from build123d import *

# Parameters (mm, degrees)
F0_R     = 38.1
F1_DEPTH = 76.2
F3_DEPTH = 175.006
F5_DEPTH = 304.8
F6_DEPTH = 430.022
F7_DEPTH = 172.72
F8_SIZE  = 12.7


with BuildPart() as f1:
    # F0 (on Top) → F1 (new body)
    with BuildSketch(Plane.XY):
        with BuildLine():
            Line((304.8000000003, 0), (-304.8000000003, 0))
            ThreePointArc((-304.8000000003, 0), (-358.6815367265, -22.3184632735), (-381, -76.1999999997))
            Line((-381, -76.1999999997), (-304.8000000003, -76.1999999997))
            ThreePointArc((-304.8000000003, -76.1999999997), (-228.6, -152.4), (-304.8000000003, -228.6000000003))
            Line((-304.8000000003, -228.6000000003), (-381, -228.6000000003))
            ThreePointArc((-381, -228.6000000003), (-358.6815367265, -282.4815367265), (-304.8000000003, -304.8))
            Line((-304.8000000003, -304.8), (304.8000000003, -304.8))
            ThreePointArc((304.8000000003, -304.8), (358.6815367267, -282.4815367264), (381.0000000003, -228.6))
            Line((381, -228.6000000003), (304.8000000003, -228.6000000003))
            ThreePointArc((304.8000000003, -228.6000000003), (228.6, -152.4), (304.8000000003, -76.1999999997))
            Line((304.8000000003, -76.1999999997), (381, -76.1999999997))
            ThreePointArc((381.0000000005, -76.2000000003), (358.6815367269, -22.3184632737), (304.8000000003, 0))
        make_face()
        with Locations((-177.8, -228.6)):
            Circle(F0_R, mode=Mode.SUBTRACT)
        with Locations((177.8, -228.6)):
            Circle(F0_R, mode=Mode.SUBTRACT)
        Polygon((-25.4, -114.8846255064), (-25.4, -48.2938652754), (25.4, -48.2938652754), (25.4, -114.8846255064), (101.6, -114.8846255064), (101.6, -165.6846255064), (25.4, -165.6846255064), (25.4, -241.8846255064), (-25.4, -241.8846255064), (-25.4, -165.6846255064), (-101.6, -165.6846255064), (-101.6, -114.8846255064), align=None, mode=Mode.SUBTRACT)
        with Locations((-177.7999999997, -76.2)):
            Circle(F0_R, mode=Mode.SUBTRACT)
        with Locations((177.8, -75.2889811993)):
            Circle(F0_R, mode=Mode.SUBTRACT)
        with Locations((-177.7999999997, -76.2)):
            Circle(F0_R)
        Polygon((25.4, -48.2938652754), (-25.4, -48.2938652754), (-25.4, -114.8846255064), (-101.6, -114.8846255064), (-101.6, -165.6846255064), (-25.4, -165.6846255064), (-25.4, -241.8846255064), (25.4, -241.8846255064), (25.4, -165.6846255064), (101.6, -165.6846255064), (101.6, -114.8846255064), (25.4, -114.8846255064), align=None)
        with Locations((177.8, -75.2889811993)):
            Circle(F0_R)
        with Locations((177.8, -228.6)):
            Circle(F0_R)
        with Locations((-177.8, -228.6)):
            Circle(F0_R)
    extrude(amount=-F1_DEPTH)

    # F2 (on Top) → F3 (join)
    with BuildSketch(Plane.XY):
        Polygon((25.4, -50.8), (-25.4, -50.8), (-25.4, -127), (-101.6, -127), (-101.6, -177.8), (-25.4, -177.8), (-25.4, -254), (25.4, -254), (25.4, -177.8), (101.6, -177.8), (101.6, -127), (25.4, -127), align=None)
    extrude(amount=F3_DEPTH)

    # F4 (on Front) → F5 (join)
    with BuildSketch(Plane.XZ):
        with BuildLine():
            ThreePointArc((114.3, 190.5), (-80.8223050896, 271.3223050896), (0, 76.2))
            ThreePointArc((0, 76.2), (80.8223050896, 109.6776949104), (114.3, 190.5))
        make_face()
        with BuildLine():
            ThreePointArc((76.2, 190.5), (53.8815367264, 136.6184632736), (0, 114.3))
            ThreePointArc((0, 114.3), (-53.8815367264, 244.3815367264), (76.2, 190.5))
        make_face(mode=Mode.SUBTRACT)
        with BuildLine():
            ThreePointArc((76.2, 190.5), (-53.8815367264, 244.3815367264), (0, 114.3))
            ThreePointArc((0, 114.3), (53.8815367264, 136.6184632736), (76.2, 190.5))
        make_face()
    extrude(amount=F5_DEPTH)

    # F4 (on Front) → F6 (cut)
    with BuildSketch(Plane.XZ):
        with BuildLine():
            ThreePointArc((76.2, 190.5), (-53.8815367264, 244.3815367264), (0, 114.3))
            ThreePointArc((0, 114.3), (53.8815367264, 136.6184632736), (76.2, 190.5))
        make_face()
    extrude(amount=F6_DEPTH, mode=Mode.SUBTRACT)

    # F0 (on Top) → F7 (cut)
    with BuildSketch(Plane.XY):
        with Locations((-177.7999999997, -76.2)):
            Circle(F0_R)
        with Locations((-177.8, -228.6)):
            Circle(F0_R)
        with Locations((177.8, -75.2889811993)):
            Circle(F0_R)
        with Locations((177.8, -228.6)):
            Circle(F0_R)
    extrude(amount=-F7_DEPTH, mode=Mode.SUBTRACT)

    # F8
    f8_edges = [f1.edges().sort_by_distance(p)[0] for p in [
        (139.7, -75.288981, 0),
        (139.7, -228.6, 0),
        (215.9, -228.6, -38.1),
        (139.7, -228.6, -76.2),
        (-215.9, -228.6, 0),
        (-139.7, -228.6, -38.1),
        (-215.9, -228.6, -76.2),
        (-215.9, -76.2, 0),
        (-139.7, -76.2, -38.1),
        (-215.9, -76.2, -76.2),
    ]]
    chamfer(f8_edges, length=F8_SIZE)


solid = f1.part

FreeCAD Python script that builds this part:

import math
import FreeCAD as App
import Part
import Sketcher
from FreeCAD import Vector
Q = App.Units.Quantity


def edges_at(feature, points):
    """Names of the edges that pass closest to the given points."""
    edges = feature.Shape.Edges
    near = lambda p: min(range(len(edges)), key=lambda i: edges[i].distToShape(Part.Vertex(*p))[0])
    return sorted({f"Edge{near(p) + 1}" for p in points})


def add_polygon(sketch, points):
    """Adds a closed chain of lines whose ends are joined by coincident constraints."""
    first, n = sketch.GeometryCount, len(points)
    for a, b in zip(points, points[1:] + points[:1]):
        sketch.addGeometry(Part.LineSegment(App.Vector(*a, 0), App.Vector(*b, 0)), False)
    for i in range(n):
        sketch.addConstraint(Sketcher.Constraint("Coincident", first + i, 2, first + (i + 1) % n, 1))

doc = App.newDocument("Part")
params = doc.addObject("Spreadsheet::Sheet", "Params")
for row, (alias, value) in enumerate([
    ("sketch1_radius", "3 in"),
    ("sketch1_width", "24 in"),
    ("pad1_length", "3 in"),
    ("sketch2_width", "2 in"),
    ("sketch2_width2", "3 in"),
    ("pad2_length", "6.89 in"),
    ("sketch3_diameter", "9 in"),
    ("pad3_length", "12 in"),
    ("sketch4_diameter", "6 in"),
    ("pocket1_length", "16.93 in"),
    ("sketch5_diameter", "3 in"),
    ("pocket2_length", "6.8 in"),
    ("chamfer_size", "0.5 in"),
], start=1):
    params.set(f"A{row}", alias)
    params.set(f"B{row}", "=" + value)
    params.setAlias(f"B{row}", alias)

body = doc.addObject("PartDesign::Body", "Body")

sketch1 = body.newObject("Sketcher::SketchObject", "Sketch")
sketch1.AttachmentSupport = (doc.getObject("XY_Plane"), [""])
sketch1.MapMode = "FlatFace"
sketch1.addGeometry(Part.LineSegment(Vector(305, 0, 0), Vector(-305, 0, 0)), False)
sketch1.addGeometry(Part.ArcOfCircle(Part.Circle(Vector(-305, -76, 0), Vector(0, 0, 1), 76), math.radians(90), math.radians(180)), False)
sketch1.addGeometry(Part.LineSegment(Vector(-381, -76, 0), Vector(-305, -76, 0)), False)
sketch1.addGeometry(Part.ArcOfCircle(Part.Circle(Vector(-305, -152, 0), Vector(0, 0, 1), 76), math.radians(-90), math.radians(90)), False)
sketch1.addGeometry(Part.LineSegment(Vector(-305, -229, 0), Vector(-381, -229, 0)), False)
sketch1.addGeometry(Part.ArcOfCircle(Part.Circle(Vector(-305, -229, 0), Vector(0, 0, 1), 76), math.radians(180), math.radians(270)), False)
sketch1.addGeometry(Part.LineSegment(Vector(-305, -305, 0), Vector(305, -305, 0)), False)
sketch1.addGeometry(Part.ArcOfCircle(Part.Circle(Vector(305, -229, 0), Vector(0, 0, 1), 76), math.radians(-90), math.radians(0)), False)
sketch1.addGeometry(Part.LineSegment(Vector(381, -229, 0), Vector(305, -229, 0)), False)
sketch1.addGeometry(Part.ArcOfCircle(Part.Circle(Vector(305, -152, 0), Vector(0, 0, 1), 76), math.radians(90), math.radians(270)), False)
sketch1.addGeometry(Part.LineSegment(Vector(305, -76, 0), Vector(381, -76, 0)), False)
sketch1.addGeometry(Part.ArcOfCircle(Part.Circle(Vector(305, -76, 0), Vector(0, 0, 1), 76), math.radians(0), math.radians(90)), False)
sketch1.addConstraint(Sketcher.Constraint("Tangent", 0, 2, 1, 1))
sketch1.addConstraint(Sketcher.Constraint("Coincident", 1, 2, 2, 1))
sketch1.addConstraint(Sketcher.Constraint("Tangent", 2, 2, 3, 2))
sketch1.addConstraint(Sketcher.Constraint("Tangent", 3, 1, 4, 1))
sketch1.addConstraint(Sketcher.Constraint("Coincident", 4, 2, 5, 1))
sketch1.addConstraint(Sketcher.Constraint("Tangent", 5, 2, 6, 1))
sketch1.addConstraint(Sketcher.Constraint("Tangent", 6, 2, 7, 1))
sketch1.addConstraint(Sketcher.Constraint("Coincident", 7, 2, 8, 1))
sketch1.addConstraint(Sketcher.Constraint("Tangent", 8, 2, 9, 2))
sketch1.addConstraint(Sketcher.Constraint("Tangent", 9, 1, 10, 1))
sketch1.addConstraint(Sketcher.Constraint("Coincident", 10, 2, 11, 1))
sketch1.addConstraint(Sketcher.Constraint("Tangent", 11, 2, 0, 1))
sketch1.addConstraint(Sketcher.Constraint("Horizontal", 0))
sketch1.addConstraint(Sketcher.Constraint("Horizontal", 2))
sketch1.addConstraint(Sketcher.Constraint("Horizontal", 4))
sketch1.addConstraint(Sketcher.Constraint("Horizontal", 6))
sketch1.addConstraint(Sketcher.Constraint("Horizontal", 8))
sketch1.addConstraint(Sketcher.Constraint("Horizontal", 10))
sketch1.addConstraint(Sketcher.Constraint("Coincident", 2, 2, 1, 3))
sketch1.addConstraint(Sketcher.Constraint("Coincident", 3, 1, 5, 3))
sketch1.addConstraint(Sketcher.Constraint("Coincident", 8, 2, 7, 3))
sketch1.addConstraint(Sketcher.Constraint("Coincident", 9, 1, 11, 3))
sketch1.addConstraint(Sketcher.Constraint("Equal", 1, 3))
sketch1.addConstraint(Sketcher.Constraint("Equal", 3, 5))
sketch1.addConstraint(Sketcher.Constraint("Equal", 5, 7))
sketch1.addConstraint(Sketcher.Constraint("Equal", 7, 9))
sketch1.addConstraint(Sketcher.Constraint("Symmetric", 0, 2, 11, 2, -1, 1))
sketch1.addConstraint(Sketcher.Constraint("Radius", 1, Q("3 in")))
sketch1.addConstraint(Sketcher.Constraint("DistanceX", 0, 2, 0, 1, Q("24 in")))
sketch1.setExpression("Constraints[27]", "Params.sketch1_radius")
sketch1.setExpression("Constraints[28]", "Params.sketch1_width")
pad1 = body.newObject("PartDesign::Pad", "Pad")
pad1.Profile = sketch1
pad1.setExpression("Length", "Params.pad1_length")
pad1.Reversed = True

sketch2 = body.newObject("Sketcher::SketchObject", "Sketch001")
sketch2.AttachmentSupport = (doc.getObject("XY_Plane"), [""])
sketch2.MapMode = "FlatFace"
add_polygon(sketch2, [(25, -51), (-25, -51), (-25, -127), (-102, -127), (-102, -178), (-25, -178), (-25, -254), (25, -254), (25, -178), (102, -178), (102, -127), (25, -127)])
sketch2.addConstraint(Sketcher.Constraint("Horizontal", 0))
sketch2.addConstraint(Sketcher.Constraint("Vertical", 1))
sketch2.addConstraint(Sketcher.Constraint("Horizontal", 2))
sketch2.addConstraint(Sketcher.Constraint("Vertical", 3))
sketch2.addConstraint(Sketcher.Constraint("Horizontal", 4))
sketch2.addConstraint(Sketcher.Constraint("Vertical", 5))
sketch2.addConstraint(Sketcher.Constraint("Horizontal", 6))
sketch2.addConstraint(Sketcher.Constraint("Vertical", 7))
sketch2.addConstraint(Sketcher.Constraint("Horizontal", 8))
sketch2.addConstraint(Sketcher.Constraint("Vertical", 9))
sketch2.addConstraint(Sketcher.Constraint("Horizontal", 10))
sketch2.addConstraint(Sketcher.Constraint("Vertical", 11))
sketch2.addConstraint(Sketcher.Constraint("Symmetric", 4, 2, 7, 2, -2))
sketch2.addConstraint(Sketcher.Constraint("Symmetric", 2, 2, 9, 2, -2))
sketch2.addConstraint(Sketcher.Constraint("Vertical", 1, 2, 4, 2))
sketch2.addConstraint(Sketcher.Constraint("Vertical", 7, 2, 10, 2))
sketch2.addConstraint(Sketcher.Constraint("Equal", 10, 1))
sketch2.addConstraint(Sketcher.Constraint("Equal", 6, 3))
sketch2.addConstraint(Sketcher.Constraint("Equal", 1, 5))
sketch2.addConstraint(Sketcher.Constraint("DistanceX", 0, 2, 0, 1, Q("2 in")))
sketch2.addConstraint(Sketcher.Constraint("DistanceX", 2, 2, 2, 1, Q("3 in")))
sketch2.addConstraint(Sketcher.Constraint("DistanceY", 0, 2, -1, 1, Q("2 in")))
sketch2.setExpression("Constraints[31]", "Params.sketch2_width")
sketch2.setExpression("Constraints[32]", "Params.sketch2_width2")
pad2 = body.newObject("PartDesign::Pad", "Pad001")
pad2.Profile = sketch2
pad2.setExpression("Length", "Params.pad2_length")

sketch3 = body.newObject("Sketcher::SketchObject", "Sketch002")
sketch3.AttachmentSupport = (doc.getObject("XZ_Plane"), [""])
sketch3.MapMode = "FlatFace"
sketch3.addGeometry(Part.Circle(Vector(0, 190, 0), Vector(0, 0, 1), 114), False)
sketch3.addConstraint(Sketcher.Constraint("PointOnObject", 0, 3, -2))
sketch3.addConstraint(Sketcher.Constraint("Diameter", 0, Q("9 in")))
sketch3.addConstraint(Sketcher.Constraint("DistanceY", -1, 1, 0, 3, Q("7.5 in")))
sketch3.setExpression("Constraints[1]", "Params.sketch3_diameter")
pad3 = body.newObject("PartDesign::Pad", "Pad002")
pad3.Profile = sketch3
pad3.setExpression("Length", "Params.pad3_length")

sketch4 = body.newObject("Sketcher::SketchObject", "Sketch003")
sketch4.AttachmentSupport = (doc.getObject("XZ_Plane"), [""])
sketch4.MapMode = "FlatFace"
sketch4.addGeometry(Part.Circle(Vector(0, 190, 0), Vector(0, 0, 1), 76), False)
sketch4.addConstraint(Sketcher.Constraint("PointOnObject", 0, 3, -2))
sketch4.addConstraint(Sketcher.Constraint("Diameter", 0, Q("6 in")))
sketch4.addConstraint(Sketcher.Constraint("DistanceY", -1, 1, 0, 3, Q("7.5 in")))
sketch4.setExpression("Constraints[1]", "Params.sketch4_diameter")
pocket1 = body.newObject("PartDesign::Pocket", "Pocket")
pocket1.Profile = sketch4
pocket1.setExpression("Length", "Params.pocket1_length")
pocket1.Reversed = True

sketch5 = body.newObject("Sketcher::SketchObject", "Sketch004")
sketch5.AttachmentSupport = (doc.getObject("XY_Plane"), [""])
sketch5.MapMode = "FlatFace"
sketch5.addGeometry(Part.Circle(Vector(-178, -76, 0), Vector(0, 0, 1), 38), False)
sketch5.addGeometry(Part.Circle(Vector(-178, -229, 0), Vector(0, 0, 1), 38), False)
sketch5.addGeometry(Part.Circle(Vector(178, -75, 0), Vector(0, 0, 1), 38), False)
sketch5.addGeometry(Part.Circle(Vector(178, -229, 0), Vector(0, 0, 1), 38), False)
sketch5.addConstraint(Sketcher.Constraint("Equal", 0, 1))
sketch5.addConstraint(Sketcher.Constraint("Equal", 1, 2))
sketch5.addConstraint(Sketcher.Constraint("Equal", 2, 3))
sketch5.addConstraint(Sketcher.Constraint("Symmetric", 1, 3, 3, 3, -2))
sketch5.addConstraint(Sketcher.Constraint("Vertical", 0, 3, 1, 3))
sketch5.addConstraint(Sketcher.Constraint("Vertical", 2, 3, 3, 3))
sketch5.addConstraint(Sketcher.Constraint("Diameter", 0, Q("3 in")))
sketch5.addConstraint(Sketcher.Constraint("DistanceX", 0, 3, -1, 1, Q("7 in")))
sketch5.addConstraint(Sketcher.Constraint("DistanceY", 0, 3, -1, 1, Q("3 in")))
sketch5.addConstraint(Sketcher.Constraint("DistanceY", 1, 3, -1, 1, Q("9 in")))
sketch5.addConstraint(Sketcher.Constraint("DistanceY", 2, 3, -1, 1, Q("75.288981 mm")))
sketch5.setExpression("Constraints[6]", "Params.sketch5_diameter")
pocket2 = body.newObject("PartDesign::Pocket", "Pocket001")
pocket2.Profile = sketch5
pocket2.setExpression("Length", "Params.pocket2_length")
doc.recompute()

chamfer = body.newObject("PartDesign::Chamfer", "Chamfer")
chamfer.Base = (pocket2, edges_at(pocket2, [
    (139.7, -75.289, 0),
    (139.7, -228.6, 0),
    (215.9, -228.6, -38.1),
    (139.7, -228.6, -76.2),
    (-215.9, -228.6, 0),
    (-139.7, -228.6, -38.1),
    (-215.9, -228.6, -76.2),
    (-215.9, -76.2, 0),
    (-139.7, -76.2, -38.1),
    (-215.9, -76.2, -76.2),
]))
chamfer.setExpression("Size", "Params.chamfer_size")

doc.recompute()
